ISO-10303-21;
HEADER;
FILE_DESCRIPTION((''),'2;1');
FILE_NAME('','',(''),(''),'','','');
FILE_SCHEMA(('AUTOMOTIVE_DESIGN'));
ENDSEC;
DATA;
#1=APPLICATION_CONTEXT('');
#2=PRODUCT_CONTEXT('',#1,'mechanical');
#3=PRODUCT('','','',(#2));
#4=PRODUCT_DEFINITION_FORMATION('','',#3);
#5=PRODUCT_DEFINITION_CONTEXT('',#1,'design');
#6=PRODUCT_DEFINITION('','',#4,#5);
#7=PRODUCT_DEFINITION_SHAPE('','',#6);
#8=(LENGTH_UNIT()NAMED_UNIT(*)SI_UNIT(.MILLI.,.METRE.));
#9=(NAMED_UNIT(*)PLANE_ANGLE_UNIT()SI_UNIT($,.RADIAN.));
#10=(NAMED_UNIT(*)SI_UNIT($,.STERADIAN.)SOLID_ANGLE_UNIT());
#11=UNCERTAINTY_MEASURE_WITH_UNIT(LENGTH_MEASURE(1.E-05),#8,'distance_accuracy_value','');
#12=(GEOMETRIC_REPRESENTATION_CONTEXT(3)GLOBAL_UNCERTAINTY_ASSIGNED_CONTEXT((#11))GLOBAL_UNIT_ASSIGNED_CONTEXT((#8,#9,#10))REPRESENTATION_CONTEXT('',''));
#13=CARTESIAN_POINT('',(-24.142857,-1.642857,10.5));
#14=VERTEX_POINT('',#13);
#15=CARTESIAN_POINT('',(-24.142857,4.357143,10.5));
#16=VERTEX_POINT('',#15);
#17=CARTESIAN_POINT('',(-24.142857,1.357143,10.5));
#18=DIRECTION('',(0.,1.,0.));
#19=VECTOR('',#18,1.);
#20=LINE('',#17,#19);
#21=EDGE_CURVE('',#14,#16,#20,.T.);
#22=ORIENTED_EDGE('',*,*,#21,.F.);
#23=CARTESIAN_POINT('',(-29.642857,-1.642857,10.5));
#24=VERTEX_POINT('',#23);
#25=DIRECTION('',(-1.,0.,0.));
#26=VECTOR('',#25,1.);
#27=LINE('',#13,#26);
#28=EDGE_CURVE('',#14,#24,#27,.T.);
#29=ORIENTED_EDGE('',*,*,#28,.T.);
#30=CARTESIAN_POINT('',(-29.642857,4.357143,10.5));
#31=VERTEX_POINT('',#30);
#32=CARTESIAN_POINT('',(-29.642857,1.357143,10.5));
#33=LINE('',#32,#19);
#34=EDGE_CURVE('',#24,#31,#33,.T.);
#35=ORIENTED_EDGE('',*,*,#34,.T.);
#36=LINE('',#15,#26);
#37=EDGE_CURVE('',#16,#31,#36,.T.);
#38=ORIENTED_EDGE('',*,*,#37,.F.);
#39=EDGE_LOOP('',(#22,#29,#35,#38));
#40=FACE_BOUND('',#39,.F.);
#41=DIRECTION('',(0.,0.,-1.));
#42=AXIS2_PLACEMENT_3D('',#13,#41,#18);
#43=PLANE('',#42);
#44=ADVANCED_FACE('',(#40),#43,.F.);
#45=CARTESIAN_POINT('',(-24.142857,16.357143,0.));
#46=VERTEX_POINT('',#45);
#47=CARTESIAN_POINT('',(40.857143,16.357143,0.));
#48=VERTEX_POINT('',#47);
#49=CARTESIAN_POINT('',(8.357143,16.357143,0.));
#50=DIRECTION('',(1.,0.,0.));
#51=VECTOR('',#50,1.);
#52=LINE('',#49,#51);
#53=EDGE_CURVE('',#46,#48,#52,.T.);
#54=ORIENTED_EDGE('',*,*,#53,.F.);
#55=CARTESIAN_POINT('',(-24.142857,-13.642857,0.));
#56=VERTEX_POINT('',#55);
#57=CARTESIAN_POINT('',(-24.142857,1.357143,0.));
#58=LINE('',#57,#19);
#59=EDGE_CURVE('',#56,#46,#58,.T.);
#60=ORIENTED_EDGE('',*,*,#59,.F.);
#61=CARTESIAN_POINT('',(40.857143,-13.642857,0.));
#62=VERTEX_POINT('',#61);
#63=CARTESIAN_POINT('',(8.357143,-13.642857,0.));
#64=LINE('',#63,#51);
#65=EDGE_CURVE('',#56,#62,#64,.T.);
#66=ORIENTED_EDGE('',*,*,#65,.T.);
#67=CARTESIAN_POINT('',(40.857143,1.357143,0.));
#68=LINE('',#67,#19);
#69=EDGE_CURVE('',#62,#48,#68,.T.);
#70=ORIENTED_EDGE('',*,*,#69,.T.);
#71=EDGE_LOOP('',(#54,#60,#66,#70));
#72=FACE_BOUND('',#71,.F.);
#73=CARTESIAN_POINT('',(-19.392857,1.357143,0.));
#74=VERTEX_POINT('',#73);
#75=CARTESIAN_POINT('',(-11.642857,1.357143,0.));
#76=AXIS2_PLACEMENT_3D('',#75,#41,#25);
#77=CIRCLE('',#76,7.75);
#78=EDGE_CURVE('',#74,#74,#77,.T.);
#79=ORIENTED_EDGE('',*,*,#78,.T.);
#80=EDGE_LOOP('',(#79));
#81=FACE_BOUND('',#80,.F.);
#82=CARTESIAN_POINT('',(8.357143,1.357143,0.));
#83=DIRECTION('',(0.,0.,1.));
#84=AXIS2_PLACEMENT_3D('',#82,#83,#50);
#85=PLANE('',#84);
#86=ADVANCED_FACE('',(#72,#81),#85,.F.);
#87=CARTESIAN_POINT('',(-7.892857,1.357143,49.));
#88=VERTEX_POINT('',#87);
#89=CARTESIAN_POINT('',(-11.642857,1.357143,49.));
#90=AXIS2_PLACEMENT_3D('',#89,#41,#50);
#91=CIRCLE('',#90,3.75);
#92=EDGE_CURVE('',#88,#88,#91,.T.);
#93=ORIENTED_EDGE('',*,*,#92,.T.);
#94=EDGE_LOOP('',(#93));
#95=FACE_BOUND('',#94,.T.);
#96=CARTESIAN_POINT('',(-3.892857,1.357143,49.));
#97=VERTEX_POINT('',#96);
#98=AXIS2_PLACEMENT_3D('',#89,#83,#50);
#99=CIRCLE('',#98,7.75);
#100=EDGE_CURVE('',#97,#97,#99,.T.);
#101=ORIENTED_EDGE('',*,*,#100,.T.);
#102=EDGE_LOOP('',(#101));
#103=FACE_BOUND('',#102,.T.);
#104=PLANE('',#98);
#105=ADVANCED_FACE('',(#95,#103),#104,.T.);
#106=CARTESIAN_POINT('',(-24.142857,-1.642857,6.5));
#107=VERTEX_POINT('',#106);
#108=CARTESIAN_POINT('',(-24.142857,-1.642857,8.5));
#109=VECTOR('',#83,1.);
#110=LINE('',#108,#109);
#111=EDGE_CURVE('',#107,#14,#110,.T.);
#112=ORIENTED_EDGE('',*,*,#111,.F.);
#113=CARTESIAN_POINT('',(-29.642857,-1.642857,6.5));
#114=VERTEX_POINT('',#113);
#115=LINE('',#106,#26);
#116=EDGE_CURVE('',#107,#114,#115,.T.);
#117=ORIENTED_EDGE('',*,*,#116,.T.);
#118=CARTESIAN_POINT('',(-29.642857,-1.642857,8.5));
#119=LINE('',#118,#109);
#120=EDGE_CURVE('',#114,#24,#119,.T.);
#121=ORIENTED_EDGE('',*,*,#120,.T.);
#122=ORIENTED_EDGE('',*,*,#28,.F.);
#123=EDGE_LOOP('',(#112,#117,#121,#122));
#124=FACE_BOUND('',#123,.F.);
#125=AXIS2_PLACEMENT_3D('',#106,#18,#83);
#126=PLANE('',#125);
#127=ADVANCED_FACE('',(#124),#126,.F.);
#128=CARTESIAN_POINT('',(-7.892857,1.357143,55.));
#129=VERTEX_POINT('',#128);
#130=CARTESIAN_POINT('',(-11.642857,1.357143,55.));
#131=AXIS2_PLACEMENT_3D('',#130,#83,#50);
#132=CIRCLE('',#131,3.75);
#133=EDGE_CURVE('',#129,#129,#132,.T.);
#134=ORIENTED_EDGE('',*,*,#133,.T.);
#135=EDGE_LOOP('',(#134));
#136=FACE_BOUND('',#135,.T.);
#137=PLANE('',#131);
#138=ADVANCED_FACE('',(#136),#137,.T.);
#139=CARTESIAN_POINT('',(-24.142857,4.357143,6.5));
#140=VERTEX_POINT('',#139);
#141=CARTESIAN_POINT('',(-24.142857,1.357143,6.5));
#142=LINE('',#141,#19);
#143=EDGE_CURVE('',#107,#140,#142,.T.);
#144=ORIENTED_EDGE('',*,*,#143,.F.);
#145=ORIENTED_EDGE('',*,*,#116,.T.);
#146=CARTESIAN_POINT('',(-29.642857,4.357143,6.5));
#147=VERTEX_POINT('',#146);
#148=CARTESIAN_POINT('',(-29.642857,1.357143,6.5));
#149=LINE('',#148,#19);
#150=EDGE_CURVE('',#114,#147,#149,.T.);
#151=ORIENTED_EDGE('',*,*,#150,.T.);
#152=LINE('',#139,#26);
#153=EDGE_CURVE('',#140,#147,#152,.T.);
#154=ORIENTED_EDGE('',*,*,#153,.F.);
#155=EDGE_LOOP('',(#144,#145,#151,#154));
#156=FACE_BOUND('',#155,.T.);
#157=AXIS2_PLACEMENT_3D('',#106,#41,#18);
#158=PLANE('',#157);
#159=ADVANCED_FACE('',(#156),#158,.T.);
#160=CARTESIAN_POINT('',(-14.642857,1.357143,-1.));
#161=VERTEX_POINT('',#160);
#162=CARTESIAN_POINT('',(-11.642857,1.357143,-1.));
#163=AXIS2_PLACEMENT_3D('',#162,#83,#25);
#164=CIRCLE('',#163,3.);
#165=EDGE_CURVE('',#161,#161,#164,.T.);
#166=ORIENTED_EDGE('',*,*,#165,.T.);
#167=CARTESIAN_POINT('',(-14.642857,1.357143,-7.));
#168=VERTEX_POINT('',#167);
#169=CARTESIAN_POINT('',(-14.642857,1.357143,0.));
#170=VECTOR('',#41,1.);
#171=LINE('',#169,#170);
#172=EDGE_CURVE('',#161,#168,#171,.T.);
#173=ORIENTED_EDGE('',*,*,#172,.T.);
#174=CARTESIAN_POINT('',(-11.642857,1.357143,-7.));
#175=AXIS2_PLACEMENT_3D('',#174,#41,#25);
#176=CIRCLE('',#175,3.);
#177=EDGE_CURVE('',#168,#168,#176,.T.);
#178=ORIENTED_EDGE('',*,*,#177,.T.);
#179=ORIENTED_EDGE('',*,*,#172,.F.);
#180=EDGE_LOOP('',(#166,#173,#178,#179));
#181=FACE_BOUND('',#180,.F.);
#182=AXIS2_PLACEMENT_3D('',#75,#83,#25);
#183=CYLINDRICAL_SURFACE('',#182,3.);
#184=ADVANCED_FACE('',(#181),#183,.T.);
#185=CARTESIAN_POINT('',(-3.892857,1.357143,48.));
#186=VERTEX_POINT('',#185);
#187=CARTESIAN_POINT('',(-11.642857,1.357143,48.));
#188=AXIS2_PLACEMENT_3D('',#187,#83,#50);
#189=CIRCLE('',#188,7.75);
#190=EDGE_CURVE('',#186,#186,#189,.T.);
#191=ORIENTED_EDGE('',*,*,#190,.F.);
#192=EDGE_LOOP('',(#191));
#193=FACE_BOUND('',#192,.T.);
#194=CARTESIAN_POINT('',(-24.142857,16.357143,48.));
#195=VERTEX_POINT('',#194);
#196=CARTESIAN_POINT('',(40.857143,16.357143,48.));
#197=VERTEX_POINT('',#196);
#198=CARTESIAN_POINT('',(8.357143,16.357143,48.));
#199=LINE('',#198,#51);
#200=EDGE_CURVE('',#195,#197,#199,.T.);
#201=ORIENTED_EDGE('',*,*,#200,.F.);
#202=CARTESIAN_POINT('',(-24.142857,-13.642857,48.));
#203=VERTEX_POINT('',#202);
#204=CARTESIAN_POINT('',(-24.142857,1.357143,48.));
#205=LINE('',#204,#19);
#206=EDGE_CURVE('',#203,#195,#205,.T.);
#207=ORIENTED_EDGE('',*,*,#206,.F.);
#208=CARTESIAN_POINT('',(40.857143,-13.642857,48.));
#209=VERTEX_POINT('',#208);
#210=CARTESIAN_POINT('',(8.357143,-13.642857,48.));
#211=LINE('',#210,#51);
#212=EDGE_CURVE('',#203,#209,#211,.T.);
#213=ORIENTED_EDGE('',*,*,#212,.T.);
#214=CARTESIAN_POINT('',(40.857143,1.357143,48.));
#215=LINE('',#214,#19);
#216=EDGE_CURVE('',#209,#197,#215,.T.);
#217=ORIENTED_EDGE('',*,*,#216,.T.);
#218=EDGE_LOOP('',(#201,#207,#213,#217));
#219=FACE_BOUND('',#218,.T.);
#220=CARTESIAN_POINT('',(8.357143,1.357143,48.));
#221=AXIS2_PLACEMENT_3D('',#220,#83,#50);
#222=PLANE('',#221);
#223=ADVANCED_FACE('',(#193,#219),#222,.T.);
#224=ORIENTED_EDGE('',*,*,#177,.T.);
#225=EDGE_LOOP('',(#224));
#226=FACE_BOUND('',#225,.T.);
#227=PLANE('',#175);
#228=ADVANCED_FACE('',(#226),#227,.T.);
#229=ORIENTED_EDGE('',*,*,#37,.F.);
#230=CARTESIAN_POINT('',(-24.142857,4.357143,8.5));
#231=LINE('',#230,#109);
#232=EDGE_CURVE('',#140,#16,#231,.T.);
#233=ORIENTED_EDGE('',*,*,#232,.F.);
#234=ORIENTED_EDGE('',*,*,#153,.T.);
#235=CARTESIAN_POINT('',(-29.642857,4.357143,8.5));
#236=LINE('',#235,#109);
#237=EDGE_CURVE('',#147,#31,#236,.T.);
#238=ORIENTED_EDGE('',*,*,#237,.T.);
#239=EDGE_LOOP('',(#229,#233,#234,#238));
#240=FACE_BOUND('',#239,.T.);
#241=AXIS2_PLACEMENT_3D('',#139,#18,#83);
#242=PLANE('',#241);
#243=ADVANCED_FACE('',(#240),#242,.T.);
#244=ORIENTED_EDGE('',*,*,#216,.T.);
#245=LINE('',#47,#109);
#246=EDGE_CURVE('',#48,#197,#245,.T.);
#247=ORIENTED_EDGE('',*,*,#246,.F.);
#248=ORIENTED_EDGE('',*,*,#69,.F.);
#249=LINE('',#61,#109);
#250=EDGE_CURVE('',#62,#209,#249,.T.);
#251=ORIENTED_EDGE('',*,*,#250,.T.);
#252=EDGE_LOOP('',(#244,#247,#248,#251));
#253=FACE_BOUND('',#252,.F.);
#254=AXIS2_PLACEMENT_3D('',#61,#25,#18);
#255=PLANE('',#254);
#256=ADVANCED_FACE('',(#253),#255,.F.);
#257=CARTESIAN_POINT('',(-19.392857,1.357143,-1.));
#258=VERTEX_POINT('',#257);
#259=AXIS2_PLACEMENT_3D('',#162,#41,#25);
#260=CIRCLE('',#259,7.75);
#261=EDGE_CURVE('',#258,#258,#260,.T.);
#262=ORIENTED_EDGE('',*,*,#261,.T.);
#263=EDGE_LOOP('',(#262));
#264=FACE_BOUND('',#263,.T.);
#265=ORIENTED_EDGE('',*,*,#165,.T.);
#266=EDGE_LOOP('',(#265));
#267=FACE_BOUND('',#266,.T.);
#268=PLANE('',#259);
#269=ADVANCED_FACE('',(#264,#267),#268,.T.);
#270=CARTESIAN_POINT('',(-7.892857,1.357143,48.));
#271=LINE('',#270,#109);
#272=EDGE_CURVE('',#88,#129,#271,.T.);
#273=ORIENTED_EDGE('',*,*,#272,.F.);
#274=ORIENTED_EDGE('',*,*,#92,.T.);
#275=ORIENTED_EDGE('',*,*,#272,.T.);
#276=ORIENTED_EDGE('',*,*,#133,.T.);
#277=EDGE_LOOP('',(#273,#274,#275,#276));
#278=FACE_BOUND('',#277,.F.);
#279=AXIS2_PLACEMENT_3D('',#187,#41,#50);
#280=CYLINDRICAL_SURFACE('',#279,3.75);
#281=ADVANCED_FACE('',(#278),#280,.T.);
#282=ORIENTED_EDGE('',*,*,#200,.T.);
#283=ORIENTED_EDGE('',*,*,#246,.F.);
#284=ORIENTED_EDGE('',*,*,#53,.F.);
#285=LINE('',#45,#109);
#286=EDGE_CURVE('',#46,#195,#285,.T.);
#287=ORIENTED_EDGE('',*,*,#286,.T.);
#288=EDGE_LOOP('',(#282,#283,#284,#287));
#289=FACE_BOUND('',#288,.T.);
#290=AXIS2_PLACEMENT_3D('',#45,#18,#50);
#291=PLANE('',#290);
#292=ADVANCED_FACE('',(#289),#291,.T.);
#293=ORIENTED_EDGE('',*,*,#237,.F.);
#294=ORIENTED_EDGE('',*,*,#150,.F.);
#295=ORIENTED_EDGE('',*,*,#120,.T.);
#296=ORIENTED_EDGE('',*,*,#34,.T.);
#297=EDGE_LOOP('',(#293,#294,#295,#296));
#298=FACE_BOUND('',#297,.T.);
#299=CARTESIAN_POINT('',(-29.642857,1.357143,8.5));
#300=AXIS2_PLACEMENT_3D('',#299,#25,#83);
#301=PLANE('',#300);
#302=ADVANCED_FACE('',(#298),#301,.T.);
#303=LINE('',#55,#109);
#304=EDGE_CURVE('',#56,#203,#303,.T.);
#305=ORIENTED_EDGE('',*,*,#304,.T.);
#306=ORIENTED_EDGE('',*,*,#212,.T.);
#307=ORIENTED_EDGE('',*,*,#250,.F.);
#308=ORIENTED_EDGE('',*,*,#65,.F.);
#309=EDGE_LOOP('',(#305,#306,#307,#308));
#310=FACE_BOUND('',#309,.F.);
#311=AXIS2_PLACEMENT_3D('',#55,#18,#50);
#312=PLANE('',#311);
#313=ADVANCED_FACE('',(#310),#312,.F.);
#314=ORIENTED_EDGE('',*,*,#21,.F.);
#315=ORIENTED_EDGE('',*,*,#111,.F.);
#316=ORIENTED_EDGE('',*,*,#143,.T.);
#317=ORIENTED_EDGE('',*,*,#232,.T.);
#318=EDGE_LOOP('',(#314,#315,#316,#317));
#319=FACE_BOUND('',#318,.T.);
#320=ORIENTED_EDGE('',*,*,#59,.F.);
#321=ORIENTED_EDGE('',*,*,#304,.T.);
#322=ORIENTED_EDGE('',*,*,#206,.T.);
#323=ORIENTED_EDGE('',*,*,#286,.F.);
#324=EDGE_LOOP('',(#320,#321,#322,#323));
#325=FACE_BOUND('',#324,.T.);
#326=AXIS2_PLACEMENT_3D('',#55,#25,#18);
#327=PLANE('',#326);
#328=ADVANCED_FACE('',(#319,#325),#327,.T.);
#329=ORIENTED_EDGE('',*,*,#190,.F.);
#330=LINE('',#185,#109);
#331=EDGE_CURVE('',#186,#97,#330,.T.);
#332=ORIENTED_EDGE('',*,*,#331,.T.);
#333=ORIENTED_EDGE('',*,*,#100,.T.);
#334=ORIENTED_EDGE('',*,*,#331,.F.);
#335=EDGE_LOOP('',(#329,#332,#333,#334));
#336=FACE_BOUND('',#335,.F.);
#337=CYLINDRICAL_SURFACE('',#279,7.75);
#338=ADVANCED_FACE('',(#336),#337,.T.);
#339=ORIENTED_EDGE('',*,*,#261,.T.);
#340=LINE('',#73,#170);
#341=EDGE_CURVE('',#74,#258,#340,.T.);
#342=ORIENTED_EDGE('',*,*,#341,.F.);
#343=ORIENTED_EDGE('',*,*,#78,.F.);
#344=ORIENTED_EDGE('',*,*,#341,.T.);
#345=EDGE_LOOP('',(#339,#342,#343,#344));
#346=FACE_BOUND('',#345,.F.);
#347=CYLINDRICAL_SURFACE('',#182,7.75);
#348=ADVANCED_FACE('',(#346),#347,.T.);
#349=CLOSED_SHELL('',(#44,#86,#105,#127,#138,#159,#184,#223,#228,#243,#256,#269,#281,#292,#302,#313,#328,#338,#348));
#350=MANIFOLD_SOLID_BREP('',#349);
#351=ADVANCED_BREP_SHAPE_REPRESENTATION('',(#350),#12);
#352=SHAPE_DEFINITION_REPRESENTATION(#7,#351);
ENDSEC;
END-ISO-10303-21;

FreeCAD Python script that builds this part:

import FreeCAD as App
import Part
import Sketcher

doc = App.newDocument("Part")
body = doc.addObject("PartDesign::Body", "Body")

sketch1 = doc.addObject("Sketcher::SketchObject", "Sketch")
body.addObject(sketch1)
sketch1.AttachmentSupport = (doc.XY_Plane, [""])
sketch1.MapMode = "FlatFace"
sketch1.addGeometry(Part.LineSegment(App.Vector(-24, 16, 0), App.Vector(-24, -14, 0)), False)
sketch1.addGeometry(Part.LineSegment(App.Vector(-24, -14, 0), App.Vector(41, -14, 0)), False)
sketch1.addGeometry(Part.LineSegment(App.Vector(41, -14, 0), App.Vector(41, 16, 0)), False)
sketch1.addGeometry(Part.LineSegment(App.Vector(41, 16, 0), App.Vector(-24, 16, 0)), False)
sketch1.addConstraint(Sketcher.Constraint("Coincident", 0, 2, 1, 1))
sketch1.addConstraint(Sketcher.Constraint("Coincident", 1, 2, 2, 1))
sketch1.addConstraint(Sketcher.Constraint("Coincident", 2, 2, 3, 1))
sketch1.addConstraint(Sketcher.Constraint("Coincident", 3, 2, 0, 1))
sketch1.addConstraint(Sketcher.Constraint("Vertical", 0))
sketch1.addConstraint(Sketcher.Constraint("Horizontal", 1))
sketch1.addConstraint(Sketcher.Constraint("Vertical", 2))
sketch1.addConstraint(Sketcher.Constraint("Horizontal", 3))
sketch1.addConstraint(Sketcher.Constraint("DistanceX", 1, 1, 1, 2, 65.0))
sketch1.addConstraint(Sketcher.Constraint("DistanceY", 0, 2, 0, 1, 30.0))
sketch1.addConstraint(Sketcher.Constraint("DistanceX", 0, 2, -1, 1, 24.142857))
sketch1.addConstraint(Sketcher.Constraint("DistanceY", 0, 2, -1, 1, 13.642857))
pad1 = doc.addObject("PartDesign::Pad", "Pad")
body.addObject(pad1)
pad1.Profile = sketch1
pad1.Length = 48

sketch2 = doc.addObject("Sketcher::SketchObject", "Sketch001")
body.addObject(sketch2)
sketch2.AttachmentSupport = (doc.XY_Plane, [""])
sketch2.MapMode = "FlatFace"
sketch2.AttachmentOffset = App.Placement(App.Vector(0, 0, 48), App.Rotation())
sketch2.addGeometry(Part.Circle(App.Vector(-11.6, 1.4, 0), App.Vector(0, 0, 1), 3.8), False)
sketch2.addConstraint(Sketcher.Constraint("Diameter", 0, 7.5))
sketch2.addConstraint(Sketcher.Constraint("DistanceX", 0, 3, -1, 1, 11.642857))
sketch2.addConstraint(Sketcher.Constraint("DistanceY", -1, 1, 0, 3, 1.357143))
pad2 = doc.addObject("PartDesign::Pad", "Pad001")
body.addObject(pad2)
pad2.Profile = sketch2
pad2.Length = 7

sketch3 = doc.addObject("Sketcher::SketchObject", "Sketch002")
body.addObject(sketch3)
sketch3.AttachmentSupport = (doc.XY_Plane, [""])
sketch3.MapMode = "FlatFace"
sketch3.AttachmentOffset = App.Placement(App.Vector(0, 0, 48), App.Rotation())
sketch3.addGeometry(Part.Circle(App.Vector(-12, 1, 0), App.Vector(0, 0, 1), 8), False)
sketch3.addConstraint(Sketcher.Constraint("Diameter", 0, 15.5))
sketch3.addConstraint(Sketcher.Constraint("DistanceX", 0, 3, -1, 1, 11.642857))
sketch3.addConstraint(Sketcher.Constraint("DistanceY", -1, 1, 0, 3, 1.357143))
pad3 = doc.addObject("PartDesign::Pad", "Pad002")
body.addObject(pad3)
pad3.Profile = sketch3
pad3.Length = 1

sketch4 = doc.addObject("Sketcher::SketchObject", "Sketch003")
body.addObject(sketch4)
sketch4.AttachmentSupport = (doc.XY_Plane, [""])
sketch4.MapMode = "FlatFace"
sketch4.addGeometry(Part.Circle(App.Vector(-11.6, 1.4, 0), App.Vector(0, 0, 1), 3), False)
sketch4.addConstraint(Sketcher.Constraint("Diameter", 0, 6.0))
sketch4.addConstraint(Sketcher.Constraint("DistanceX", 0, 3, -1, 1, 11.642857))
sketch4.addConstraint(Sketcher.Constraint("DistanceY", -1, 1, 0, 3, 1.357143))
pad4 = doc.addObject("PartDesign::Pad", "Pad003")
body.addObject(pad4)
pad4.Profile = sketch4
pad4.Length = 7
pad4.Reversed = True

sketch5 = doc.addObject("Sketcher::SketchObject", "Sketch004")
body.addObject(sketch5)
sketch5.AttachmentSupport = (doc.XY_Plane, [""])
sketch5.MapMode = "FlatFace"
sketch5.addGeometry(Part.Circle(App.Vector(-12, 1, 0), App.Vector(0, 0, 1), 8), False)
sketch5.addConstraint(Sketcher.Constraint("Diameter", 0, 15.5))
sketch5.addConstraint(Sketcher.Constraint("DistanceX", 0, 3, -1, 1, 11.642857))
sketch5.addConstraint(Sketcher.Constraint("DistanceY", -1, 1, 0, 3, 1.357143))
pad5 = doc.addObject("PartDesign::Pad", "Pad004")
body.addObject(pad5)
pad5.Profile = sketch5
pad5.Length = 1
pad5.Reversed = True

sketch6 = doc.addObject("Sketcher::SketchObject", "Sketch005")
body.addObject(sketch6)
sketch6.AttachmentSupport = (doc.YZ_Plane, [""])
sketch6.MapMode = "FlatFace"
sketch6.AttachmentOffset = App.Placement(App.Vector(0, 0, -24.142857), App.Rotation())
sketch6.addGeometry(Part.LineSegment(App.Vector(4.4, 6.5, 0), App.Vector(-1.6, 6.5, 0)), False)
sketch6.addGeometry(Part.LineSegment(App.Vector(-1.6, 6.5, 0), App.Vector(-1.6, 10.5, 0)), False)
sketch6.addGeometry(Part.LineSegment(App.Vector(-1.6, 10.5, 0), App.Vector(4.4, 10.5, 0)), False)
sketch6.addGeometry(Part.LineSegment(App.Vector(4.4, 10.5, 0), App.Vector(4.4, 6.5, 0)), False)
sketch6.addConstraint(Sketcher.Constraint("Coincident", 0, 2, 1, 1))
sketch6.addConstraint(Sketcher.Constraint("Coincident", 1, 2, 2, 1))
sketch6.addConstraint(Sketcher.Constraint("Coincident", 2, 2, 3, 1))
sketch6.addConstraint(Sketcher.Constraint("Coincident", 3, 2, 0, 1))
sketch6.addConstraint(Sketcher.Constraint("Horizontal", 0))
sketch6.addConstraint(Sketcher.Constraint("Vertical", 1))
sketch6.addConstraint(Sketcher.Constraint("Horizontal", 2))
sketch6.addConstraint(Sketcher.Constraint("Vertical", 3))
sketch6.addConstraint(Sketcher.Constraint("DistanceX", 0, 2, 0, 1, 6.0))
sketch6.addConstraint(Sketcher.Constraint("DistanceY", 1, 1, 1, 2, 4.0))
sketch6.addConstraint(Sketcher.Constraint("DistanceY", -1, 1, 0, 2, 6.5))
sketch6.addConstraint(Sketcher.Constraint("DistanceX", 0, 2, -1, 1, 1.642857))
pad6 = doc.addObject("PartDesign::Pad", "Pad005")
body.addObject(pad6)
pad6.Profile = sketch6
pad6.Length = 5.5
pad6.Reversed = True

doc.recompute()
